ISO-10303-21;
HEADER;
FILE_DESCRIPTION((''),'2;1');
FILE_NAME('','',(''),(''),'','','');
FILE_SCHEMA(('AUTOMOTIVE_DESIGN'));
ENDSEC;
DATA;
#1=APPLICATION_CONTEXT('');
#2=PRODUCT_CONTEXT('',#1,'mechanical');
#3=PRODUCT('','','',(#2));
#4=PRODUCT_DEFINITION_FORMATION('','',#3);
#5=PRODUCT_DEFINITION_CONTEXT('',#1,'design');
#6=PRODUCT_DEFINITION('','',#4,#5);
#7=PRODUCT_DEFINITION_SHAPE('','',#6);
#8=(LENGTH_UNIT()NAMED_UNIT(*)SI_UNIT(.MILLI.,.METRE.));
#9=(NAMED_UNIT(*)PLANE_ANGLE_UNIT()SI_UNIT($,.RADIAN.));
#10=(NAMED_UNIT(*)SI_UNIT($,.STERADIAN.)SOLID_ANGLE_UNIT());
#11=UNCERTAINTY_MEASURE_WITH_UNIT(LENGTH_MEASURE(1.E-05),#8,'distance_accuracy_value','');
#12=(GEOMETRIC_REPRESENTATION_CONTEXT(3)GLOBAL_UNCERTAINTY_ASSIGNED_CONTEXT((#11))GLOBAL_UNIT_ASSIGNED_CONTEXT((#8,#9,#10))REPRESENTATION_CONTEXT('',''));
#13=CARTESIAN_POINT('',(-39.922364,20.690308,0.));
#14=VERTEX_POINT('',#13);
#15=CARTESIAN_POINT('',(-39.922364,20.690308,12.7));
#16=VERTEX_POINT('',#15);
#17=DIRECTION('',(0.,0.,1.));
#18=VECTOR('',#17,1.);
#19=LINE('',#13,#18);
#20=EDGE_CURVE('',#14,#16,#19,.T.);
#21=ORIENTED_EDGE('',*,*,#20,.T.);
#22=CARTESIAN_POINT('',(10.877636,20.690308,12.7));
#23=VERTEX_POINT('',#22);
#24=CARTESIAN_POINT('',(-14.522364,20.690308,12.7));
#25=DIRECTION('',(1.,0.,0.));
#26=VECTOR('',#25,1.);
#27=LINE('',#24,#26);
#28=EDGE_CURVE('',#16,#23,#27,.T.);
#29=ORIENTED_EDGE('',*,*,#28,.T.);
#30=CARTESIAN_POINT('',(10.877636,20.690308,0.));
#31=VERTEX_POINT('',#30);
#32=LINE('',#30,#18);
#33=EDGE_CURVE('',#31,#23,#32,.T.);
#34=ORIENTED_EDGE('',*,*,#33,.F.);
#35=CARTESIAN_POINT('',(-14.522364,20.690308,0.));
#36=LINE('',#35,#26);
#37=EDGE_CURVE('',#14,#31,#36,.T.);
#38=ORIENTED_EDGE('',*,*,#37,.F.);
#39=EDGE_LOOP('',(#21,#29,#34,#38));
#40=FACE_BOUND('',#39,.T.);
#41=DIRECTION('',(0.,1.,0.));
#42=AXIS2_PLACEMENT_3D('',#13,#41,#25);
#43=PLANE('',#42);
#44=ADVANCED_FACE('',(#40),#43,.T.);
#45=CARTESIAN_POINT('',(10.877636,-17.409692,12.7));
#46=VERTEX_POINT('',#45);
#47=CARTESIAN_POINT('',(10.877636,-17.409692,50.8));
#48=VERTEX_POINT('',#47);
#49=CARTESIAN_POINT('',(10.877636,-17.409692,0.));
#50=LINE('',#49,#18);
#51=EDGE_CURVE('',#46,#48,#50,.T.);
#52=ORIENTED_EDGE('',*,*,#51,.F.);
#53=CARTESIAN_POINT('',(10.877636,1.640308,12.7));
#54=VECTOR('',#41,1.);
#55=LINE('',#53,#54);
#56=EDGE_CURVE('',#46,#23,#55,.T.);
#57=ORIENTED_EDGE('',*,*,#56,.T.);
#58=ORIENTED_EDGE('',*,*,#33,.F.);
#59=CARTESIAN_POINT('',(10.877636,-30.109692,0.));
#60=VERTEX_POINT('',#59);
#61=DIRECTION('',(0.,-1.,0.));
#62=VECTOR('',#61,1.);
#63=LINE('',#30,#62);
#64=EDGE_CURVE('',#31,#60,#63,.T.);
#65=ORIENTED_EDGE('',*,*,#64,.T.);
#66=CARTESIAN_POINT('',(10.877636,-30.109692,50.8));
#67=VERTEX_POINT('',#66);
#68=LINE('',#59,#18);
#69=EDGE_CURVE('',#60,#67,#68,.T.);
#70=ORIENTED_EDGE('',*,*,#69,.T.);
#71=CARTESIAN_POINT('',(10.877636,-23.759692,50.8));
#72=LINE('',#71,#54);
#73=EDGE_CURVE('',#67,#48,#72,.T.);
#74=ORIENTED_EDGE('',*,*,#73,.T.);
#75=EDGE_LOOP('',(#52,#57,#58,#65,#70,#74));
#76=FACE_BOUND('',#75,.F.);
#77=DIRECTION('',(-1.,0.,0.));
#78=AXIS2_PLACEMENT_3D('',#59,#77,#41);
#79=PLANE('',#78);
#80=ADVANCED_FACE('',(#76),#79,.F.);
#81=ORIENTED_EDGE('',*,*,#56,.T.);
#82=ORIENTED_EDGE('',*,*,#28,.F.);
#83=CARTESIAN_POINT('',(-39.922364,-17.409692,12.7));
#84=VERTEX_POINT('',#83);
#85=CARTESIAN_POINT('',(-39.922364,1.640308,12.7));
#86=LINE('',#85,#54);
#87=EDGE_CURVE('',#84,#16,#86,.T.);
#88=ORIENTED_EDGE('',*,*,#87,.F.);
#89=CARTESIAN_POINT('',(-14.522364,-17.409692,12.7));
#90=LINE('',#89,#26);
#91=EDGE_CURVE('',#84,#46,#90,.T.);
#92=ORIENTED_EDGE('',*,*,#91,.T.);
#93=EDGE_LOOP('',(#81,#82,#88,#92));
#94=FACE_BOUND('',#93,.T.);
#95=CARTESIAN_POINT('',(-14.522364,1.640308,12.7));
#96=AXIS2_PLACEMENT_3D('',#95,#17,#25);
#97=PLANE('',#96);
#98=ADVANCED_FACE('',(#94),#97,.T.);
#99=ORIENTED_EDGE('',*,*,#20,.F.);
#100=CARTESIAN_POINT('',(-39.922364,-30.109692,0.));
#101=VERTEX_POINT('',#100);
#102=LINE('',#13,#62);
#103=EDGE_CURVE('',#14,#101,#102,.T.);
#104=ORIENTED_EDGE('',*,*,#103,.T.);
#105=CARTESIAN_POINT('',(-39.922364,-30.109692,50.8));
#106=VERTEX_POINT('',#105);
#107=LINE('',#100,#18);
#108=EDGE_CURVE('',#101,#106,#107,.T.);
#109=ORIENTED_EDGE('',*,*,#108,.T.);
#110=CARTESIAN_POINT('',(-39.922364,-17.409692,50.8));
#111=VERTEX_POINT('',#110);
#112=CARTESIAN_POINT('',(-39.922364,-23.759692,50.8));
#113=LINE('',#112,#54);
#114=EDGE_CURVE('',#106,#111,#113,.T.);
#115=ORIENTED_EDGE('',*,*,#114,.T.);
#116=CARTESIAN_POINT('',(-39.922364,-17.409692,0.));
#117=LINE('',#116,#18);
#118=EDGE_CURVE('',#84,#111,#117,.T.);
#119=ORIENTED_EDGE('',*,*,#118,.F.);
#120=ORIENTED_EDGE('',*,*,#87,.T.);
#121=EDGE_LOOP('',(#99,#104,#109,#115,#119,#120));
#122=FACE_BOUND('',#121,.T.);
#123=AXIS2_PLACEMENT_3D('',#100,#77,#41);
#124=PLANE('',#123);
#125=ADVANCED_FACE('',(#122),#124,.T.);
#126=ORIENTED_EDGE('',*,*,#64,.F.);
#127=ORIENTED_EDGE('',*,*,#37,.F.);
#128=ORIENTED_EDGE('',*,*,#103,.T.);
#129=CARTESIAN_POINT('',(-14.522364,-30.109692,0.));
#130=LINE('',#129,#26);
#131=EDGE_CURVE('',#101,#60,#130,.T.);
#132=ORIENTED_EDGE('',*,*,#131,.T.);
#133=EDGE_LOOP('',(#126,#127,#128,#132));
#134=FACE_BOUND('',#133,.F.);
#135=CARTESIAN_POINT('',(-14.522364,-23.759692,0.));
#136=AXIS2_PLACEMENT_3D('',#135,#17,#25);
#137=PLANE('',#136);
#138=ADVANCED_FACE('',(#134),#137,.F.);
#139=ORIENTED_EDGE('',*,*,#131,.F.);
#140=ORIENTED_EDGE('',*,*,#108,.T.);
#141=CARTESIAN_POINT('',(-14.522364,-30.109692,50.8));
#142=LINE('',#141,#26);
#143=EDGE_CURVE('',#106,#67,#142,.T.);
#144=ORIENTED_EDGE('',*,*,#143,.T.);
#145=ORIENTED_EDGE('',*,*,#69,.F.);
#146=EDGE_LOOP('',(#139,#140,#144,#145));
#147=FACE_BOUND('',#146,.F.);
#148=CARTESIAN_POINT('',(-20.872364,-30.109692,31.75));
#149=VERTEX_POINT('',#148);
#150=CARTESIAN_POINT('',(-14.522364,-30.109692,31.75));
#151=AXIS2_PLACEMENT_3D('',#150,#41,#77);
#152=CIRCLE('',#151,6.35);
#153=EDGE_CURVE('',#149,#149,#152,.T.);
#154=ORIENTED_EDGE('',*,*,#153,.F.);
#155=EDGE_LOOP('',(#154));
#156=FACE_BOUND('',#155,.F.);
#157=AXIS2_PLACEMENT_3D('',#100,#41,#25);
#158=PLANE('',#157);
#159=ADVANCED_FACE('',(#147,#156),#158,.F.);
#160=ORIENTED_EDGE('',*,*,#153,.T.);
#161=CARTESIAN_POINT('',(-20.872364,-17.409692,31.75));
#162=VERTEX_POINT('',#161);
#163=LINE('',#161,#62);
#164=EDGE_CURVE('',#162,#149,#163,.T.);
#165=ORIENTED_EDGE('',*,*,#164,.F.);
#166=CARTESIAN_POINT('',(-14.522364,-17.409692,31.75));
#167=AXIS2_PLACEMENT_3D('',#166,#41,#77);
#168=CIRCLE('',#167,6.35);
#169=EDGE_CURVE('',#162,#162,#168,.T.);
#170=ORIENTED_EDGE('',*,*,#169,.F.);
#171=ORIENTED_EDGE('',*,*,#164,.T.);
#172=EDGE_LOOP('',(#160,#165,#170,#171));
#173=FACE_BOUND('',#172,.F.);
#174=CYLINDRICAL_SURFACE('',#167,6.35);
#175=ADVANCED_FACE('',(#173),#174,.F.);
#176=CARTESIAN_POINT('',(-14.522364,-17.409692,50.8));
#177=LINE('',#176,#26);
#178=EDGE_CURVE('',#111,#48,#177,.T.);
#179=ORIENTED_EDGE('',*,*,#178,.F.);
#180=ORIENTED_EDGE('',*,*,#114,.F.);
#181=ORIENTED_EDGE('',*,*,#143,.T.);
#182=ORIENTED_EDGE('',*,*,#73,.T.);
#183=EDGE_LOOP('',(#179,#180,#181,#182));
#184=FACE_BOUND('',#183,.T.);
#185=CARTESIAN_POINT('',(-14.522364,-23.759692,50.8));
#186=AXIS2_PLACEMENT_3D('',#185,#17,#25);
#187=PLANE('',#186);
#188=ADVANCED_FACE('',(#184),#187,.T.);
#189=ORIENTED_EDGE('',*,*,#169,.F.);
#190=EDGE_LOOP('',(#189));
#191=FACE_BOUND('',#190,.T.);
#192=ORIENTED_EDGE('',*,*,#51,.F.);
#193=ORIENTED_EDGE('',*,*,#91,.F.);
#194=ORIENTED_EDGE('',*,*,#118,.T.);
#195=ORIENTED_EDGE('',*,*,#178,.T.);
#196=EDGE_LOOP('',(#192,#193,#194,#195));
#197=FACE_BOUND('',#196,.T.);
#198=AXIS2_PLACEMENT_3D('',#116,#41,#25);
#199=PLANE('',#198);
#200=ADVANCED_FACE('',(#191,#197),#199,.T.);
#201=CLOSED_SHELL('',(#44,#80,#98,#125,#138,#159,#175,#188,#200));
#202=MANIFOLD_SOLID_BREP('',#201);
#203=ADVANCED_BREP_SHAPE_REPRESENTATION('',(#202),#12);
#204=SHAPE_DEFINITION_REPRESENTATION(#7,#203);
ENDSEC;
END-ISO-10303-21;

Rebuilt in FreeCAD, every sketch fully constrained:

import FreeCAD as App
import Part
import Sketcher
Q = App.Units.Quantity

doc = App.newDocument("Part")
body = doc.addObject("PartDesign::Body", "Body")

sketch1 = body.newObject("Sketcher::SketchObject", "Sketch")
sketch1.AttachmentSupport = (doc.getObject("XY_Plane"), [""])
sketch1.MapMode = "FlatFace"
sketch1.addGeometry([
    Part.LineSegment(App.Vector(-40, 21, 0), App.Vector(-40, -17, 0)),
    Part.LineSegment(App.Vector(-40, -17, 0), App.Vector(11, -17, 0)),
    Part.LineSegment(App.Vector(11, -17, 0), App.Vector(11, 21, 0)),
    Part.LineSegment(App.Vector(11, 21, 0), App.Vector(-40, 21, 0)),
], False)
sketch1.addConstraint([
    Sketcher.Constraint("Coincident", 0, 2, 1, 1),
    Sketcher.Constraint("Coincident", 1, 2, 2, 1),
    Sketcher.Constraint("Coincident", 2, 2, 3, 1),
    Sketcher.Constraint("Coincident", 3, 2, 0, 1),
    Sketcher.Constraint("Vertical", 0),
    Sketcher.Constraint("Horizontal", 1),
    Sketcher.Constraint("Vertical", 2),
    Sketcher.Constraint("Horizontal", 3),
    Sketcher.Constraint("DistanceX", 1, 1, 1, 2, Q("2 in")),
    Sketcher.Constraint("DistanceY", 0, 2, 0, 1, Q("1.5 in")),
    Sketcher.Constraint("DistanceY", 0, 2, -1, 1, Q("17.409692 mm")),
    Sketcher.Constraint("DistanceX", 0, 2, -1, 1, Q("39.922364 mm")),
])
pad1 = body.newObject("PartDesign::Pad", "Pad")
pad1.Profile = sketch1
pad1.Length = Q("0.5 in")

sketch2 = body.newObject("Sketcher::SketchObject", "Sketch001")
sketch2.AttachmentSupport = (doc.getObject("XY_Plane"), [""])
sketch2.MapMode = "FlatFace"
sketch2.addGeometry([
    Part.LineSegment(App.Vector(-40, -17, 0), App.Vector(-40, -30, 0)),
    Part.LineSegment(App.Vector(-40, -30, 0), App.Vector(11, -30, 0)),
    Part.LineSegment(App.Vector(11, -30, 0), App.Vector(11, -17, 0)),
    Part.LineSegment(App.Vector(11, -17, 0), App.Vector(-40, -17, 0)),
], False)
sketch2.addConstraint([
    Sketcher.Constraint("Coincident", 0, 2, 1, 1),
    Sketcher.Constraint("Coincident", 1, 2, 2, 1),
    Sketcher.Constraint("Coincident", 2, 2, 3, 1),
    Sketcher.Constraint("Coincident", 3, 2, 0, 1),
    Sketcher.Constraint("Vertical", 0),
    Sketcher.Constraint("Horizontal", 1),
    Sketcher.Constraint("Vertical", 2),
    Sketcher.Constraint("Horizontal", 3),
    Sketcher.Constraint("DistanceX", 1, 1, 1, 2, Q("2 in")),
    Sketcher.Constraint("DistanceY", 0, 2, 0, 1, Q("0.5 in")),
    Sketcher.Constraint("DistanceY", 0, 2, -1, 1, Q("30.109692 mm")),
    Sketcher.Constraint("DistanceX", 0, 2, -1, 1, Q("39.922364 mm")),
])
pad2 = body.newObject("PartDesign::Pad", "Pad001")
pad2.Profile = sketch2
pad2.Length = Q("2 in")

sketch3 = body.newObject("Sketcher::SketchObject", "Sketch002")
sketch3.AttachmentSupport = (doc.getObject("XZ_Plane"), [""])
sketch3.MapMode = "FlatFace"
sketch3.AttachmentOffset = App.Placement(App.Vector(0, 0, 17.409692), App.Rotation())
sketch3.addGeometry(Part.Circle(App.Vector(-15, 32, 0), App.Vector(0, 0, 1), 6), False)
sketch3.addConstraint([
    Sketcher.Constraint("Diameter", 0, Q("0.5 in")),
    Sketcher.Constraint("DistanceY", -1, 1, 0, 3, Q("1.25 in")),
    Sketcher.Constraint("DistanceX", 0, 3, -1, 1, Q("14.522364 mm")),
])
pocket1 = body.newObject("PartDesign::Pocket", "Pocket")
pocket1.Profile = sketch3
pocket1.Length = Q("1 in")
pocket1.Reversed = True

doc.recompute()
